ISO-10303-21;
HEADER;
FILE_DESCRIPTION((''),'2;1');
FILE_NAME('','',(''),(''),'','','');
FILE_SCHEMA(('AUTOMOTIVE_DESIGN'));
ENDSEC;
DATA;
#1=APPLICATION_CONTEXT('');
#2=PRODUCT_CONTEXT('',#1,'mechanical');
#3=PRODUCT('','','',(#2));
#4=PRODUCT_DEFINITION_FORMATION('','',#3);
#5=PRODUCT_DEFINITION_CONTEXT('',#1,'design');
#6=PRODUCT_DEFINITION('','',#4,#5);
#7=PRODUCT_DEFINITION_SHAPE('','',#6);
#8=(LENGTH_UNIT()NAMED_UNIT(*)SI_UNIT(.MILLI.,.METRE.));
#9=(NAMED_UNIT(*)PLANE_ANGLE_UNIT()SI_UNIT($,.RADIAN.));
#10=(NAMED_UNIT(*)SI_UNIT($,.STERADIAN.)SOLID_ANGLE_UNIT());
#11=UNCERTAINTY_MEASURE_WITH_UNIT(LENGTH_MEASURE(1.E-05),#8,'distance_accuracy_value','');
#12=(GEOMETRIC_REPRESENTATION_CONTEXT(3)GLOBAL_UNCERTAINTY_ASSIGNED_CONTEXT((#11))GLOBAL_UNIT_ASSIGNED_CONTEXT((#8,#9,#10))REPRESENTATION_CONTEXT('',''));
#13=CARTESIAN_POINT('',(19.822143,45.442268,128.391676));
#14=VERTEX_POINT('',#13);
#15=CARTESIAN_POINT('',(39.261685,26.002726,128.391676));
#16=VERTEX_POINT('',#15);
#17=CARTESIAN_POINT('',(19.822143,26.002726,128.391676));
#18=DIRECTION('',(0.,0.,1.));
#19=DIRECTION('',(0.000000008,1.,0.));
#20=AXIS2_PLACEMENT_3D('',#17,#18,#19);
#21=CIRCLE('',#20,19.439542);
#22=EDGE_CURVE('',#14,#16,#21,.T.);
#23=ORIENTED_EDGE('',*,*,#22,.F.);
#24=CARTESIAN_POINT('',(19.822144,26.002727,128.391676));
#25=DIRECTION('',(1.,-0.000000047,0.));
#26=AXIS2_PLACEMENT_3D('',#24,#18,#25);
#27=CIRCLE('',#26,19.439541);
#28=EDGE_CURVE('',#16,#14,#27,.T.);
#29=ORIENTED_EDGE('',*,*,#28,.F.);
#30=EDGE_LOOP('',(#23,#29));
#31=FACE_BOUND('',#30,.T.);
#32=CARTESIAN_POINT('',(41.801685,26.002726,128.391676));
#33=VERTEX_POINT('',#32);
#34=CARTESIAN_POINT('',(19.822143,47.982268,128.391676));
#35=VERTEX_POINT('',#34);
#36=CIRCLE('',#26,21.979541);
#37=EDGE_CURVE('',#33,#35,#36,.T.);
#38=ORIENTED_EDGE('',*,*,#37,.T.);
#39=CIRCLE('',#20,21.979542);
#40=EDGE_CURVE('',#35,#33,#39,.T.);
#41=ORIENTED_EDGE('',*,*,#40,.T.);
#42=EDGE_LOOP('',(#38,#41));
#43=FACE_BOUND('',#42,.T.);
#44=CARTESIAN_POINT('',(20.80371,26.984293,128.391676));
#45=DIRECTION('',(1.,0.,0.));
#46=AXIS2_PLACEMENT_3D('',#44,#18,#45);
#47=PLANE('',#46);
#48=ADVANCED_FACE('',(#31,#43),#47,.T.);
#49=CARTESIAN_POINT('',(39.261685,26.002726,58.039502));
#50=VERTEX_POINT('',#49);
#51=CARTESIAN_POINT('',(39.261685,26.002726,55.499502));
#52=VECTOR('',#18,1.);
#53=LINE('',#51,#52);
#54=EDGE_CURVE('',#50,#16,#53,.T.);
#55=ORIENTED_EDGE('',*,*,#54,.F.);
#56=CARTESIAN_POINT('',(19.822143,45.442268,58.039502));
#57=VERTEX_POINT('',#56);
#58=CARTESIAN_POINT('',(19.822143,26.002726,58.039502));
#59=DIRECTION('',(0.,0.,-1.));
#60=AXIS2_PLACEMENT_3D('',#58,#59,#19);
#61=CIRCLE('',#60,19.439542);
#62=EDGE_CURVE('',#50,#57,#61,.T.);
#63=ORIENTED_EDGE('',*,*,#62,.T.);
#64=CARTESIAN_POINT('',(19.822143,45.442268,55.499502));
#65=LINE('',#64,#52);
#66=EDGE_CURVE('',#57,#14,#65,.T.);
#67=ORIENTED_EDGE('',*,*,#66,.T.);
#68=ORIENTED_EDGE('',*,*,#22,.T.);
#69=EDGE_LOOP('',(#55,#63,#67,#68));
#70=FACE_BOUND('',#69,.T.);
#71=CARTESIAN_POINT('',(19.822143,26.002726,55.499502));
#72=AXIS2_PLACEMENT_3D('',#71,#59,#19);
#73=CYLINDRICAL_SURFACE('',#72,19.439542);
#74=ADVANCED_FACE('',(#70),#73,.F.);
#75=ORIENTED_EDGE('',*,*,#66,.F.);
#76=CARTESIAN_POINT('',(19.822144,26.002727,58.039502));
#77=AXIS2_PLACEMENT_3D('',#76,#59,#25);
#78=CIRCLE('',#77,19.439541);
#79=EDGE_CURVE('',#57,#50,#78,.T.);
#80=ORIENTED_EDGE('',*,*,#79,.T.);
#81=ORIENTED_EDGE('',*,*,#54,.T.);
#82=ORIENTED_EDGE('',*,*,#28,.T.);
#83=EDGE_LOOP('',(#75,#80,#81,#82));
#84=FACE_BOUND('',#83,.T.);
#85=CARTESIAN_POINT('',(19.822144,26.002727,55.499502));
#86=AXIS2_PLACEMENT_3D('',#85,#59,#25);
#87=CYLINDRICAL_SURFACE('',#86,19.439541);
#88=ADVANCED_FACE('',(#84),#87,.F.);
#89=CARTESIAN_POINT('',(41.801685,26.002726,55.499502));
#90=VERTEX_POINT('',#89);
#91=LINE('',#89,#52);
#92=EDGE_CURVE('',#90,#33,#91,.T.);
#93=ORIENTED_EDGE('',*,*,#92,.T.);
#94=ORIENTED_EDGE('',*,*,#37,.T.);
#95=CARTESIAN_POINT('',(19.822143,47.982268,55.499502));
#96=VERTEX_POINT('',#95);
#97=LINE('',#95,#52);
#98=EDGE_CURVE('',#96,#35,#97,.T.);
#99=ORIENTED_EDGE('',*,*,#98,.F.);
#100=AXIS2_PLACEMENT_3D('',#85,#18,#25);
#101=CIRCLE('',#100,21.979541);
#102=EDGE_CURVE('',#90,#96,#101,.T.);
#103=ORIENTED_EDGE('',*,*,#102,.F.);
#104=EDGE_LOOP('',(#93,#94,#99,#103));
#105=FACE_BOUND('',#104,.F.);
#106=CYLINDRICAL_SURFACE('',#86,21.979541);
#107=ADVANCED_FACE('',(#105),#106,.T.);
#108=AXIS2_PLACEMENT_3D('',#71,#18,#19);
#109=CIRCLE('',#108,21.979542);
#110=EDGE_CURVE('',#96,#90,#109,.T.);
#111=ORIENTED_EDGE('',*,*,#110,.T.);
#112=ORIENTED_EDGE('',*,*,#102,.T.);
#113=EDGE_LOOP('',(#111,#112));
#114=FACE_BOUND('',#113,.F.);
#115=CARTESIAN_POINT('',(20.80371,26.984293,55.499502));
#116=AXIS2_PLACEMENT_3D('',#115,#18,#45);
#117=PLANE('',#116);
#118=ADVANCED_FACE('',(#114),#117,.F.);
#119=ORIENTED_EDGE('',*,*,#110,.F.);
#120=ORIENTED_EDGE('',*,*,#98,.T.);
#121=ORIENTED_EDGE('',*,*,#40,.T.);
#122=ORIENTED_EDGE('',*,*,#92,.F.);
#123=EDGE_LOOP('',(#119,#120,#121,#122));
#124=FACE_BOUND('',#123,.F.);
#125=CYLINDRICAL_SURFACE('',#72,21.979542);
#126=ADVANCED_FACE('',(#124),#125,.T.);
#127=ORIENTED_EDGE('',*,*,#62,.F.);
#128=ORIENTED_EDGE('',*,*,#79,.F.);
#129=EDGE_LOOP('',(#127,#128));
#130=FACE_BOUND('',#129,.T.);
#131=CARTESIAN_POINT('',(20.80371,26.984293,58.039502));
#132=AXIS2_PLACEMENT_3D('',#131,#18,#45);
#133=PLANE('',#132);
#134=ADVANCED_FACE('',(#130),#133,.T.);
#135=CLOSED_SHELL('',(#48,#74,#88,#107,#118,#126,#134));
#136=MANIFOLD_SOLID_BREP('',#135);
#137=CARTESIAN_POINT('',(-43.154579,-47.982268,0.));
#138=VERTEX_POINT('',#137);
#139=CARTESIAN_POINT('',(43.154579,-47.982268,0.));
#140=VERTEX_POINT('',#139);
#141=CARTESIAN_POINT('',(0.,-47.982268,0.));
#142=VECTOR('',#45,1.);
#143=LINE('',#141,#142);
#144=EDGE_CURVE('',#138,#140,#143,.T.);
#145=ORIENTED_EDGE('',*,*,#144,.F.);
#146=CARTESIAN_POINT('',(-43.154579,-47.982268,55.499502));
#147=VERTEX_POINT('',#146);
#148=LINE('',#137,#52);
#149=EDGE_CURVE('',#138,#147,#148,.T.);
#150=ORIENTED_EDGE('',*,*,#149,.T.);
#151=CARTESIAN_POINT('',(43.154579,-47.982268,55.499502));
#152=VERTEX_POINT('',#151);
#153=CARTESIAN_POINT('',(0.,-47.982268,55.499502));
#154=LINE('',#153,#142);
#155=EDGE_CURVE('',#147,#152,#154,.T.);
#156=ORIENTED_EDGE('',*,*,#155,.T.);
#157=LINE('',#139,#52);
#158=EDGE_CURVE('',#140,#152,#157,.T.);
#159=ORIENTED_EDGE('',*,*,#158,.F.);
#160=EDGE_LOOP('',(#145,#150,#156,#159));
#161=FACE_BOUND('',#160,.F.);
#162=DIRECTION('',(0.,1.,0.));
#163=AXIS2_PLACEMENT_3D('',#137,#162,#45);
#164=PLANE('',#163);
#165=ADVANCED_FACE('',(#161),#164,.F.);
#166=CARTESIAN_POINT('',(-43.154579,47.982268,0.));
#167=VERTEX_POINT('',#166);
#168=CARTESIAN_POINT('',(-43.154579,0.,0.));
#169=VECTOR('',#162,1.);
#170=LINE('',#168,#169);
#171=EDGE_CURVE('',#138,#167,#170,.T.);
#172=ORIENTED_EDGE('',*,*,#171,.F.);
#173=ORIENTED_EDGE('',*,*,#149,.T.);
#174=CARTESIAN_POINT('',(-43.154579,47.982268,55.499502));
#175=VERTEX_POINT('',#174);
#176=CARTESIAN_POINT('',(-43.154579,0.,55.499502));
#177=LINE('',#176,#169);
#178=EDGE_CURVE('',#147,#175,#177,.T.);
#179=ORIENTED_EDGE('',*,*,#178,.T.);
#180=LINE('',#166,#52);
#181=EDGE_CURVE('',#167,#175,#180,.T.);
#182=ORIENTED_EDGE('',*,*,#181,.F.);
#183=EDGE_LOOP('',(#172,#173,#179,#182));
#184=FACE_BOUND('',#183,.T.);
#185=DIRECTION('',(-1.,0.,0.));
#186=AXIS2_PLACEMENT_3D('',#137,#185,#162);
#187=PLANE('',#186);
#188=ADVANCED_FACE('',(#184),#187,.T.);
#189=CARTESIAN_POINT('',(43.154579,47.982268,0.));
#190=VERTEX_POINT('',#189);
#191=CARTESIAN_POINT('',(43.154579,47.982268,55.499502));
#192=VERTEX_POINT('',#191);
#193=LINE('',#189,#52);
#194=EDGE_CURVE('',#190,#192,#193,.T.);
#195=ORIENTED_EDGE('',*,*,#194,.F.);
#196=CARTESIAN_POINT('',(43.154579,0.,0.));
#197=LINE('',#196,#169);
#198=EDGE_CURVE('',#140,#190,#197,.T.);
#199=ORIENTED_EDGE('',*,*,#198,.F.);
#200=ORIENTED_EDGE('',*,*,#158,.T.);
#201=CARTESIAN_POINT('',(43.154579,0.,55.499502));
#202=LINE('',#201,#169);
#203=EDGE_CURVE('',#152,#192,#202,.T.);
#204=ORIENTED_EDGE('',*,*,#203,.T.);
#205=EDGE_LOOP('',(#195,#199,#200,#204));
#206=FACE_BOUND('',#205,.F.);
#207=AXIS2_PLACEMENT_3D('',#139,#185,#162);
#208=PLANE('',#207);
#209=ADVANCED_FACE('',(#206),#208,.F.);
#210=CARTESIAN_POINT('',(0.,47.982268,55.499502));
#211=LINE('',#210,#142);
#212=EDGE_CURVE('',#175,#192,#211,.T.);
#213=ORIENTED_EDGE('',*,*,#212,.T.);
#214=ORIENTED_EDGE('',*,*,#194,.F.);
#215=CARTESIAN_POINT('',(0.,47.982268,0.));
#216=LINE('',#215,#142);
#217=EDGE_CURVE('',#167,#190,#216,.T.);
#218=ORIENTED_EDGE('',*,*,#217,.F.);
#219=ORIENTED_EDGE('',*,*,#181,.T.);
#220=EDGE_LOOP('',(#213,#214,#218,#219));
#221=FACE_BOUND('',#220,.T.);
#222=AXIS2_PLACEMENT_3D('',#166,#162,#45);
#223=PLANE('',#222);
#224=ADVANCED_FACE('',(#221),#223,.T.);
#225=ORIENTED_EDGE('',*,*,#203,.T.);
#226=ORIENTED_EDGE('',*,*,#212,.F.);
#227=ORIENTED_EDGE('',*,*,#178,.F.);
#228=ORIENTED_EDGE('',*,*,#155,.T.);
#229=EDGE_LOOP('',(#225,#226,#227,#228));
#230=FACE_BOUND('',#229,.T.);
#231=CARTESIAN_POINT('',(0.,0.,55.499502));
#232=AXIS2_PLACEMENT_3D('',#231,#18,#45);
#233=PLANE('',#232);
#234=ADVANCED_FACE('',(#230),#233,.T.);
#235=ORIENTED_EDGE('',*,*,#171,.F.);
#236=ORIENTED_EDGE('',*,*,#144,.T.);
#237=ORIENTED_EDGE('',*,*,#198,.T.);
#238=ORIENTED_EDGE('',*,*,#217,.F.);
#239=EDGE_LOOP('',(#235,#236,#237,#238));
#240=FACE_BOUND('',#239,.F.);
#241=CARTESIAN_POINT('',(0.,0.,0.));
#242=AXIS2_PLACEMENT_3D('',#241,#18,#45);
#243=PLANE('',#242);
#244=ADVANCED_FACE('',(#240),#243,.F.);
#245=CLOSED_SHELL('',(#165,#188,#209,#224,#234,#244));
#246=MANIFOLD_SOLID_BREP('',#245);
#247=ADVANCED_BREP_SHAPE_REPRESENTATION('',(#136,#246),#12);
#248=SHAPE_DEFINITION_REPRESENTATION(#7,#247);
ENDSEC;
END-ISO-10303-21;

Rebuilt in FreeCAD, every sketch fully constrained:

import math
import FreeCAD as App
import Part
import Sketcher
Q = App.Units.Quantity


def faces_at(feature, points):
    """Names of the faces that lie closest to the given points."""
    faces = feature.Shape.Faces
    near = lambda p: min(range(len(faces)), key=lambda i: faces[i].distToShape(Part.Vertex(*p))[0])
    return sorted({f"Face{near(p) + 1}" for p in points})


def add_polygon(sketch, points):
    """Adds a closed chain of lines whose ends are joined by coincident constraints."""
    first, n = sketch.GeometryCount, len(points)
    for a, b in zip(points, points[1:] + points[:1]):
        sketch.addGeometry(Part.LineSegment(App.Vector(*a, 0), App.Vector(*b, 0)), False)
    for i in range(n):
        sketch.addConstraint(Sketcher.Constraint("Coincident", first + i, 2, first + (i + 1) % n, 1))

doc = App.newDocument("Part")
body = doc.addObject("PartDesign::Body", "Body")

# Sketch on XY plane
sketch1 = doc.addObject("Sketcher::SketchObject", "Sketch")
body.addObject(sketch1)
sketch1.AttachmentSupport = (doc.XY_Plane, [""])
sketch1.MapMode = "FlatFace"
add_polygon(sketch1, [(-43.154579, 47.982268), (-43.154579, -47.982268), (43.154579, -47.982268), (43.154579, 47.982268)])  # lines 0-3
sketch1.addConstraint(Sketcher.Constraint("Vertical", 0))
sketch1.addConstraint(Sketcher.Constraint("Horizontal", 1))
sketch1.addConstraint(Sketcher.Constraint("Vertical", 2))
sketch1.addConstraint(Sketcher.Constraint("Horizontal", 3))
sketch1.addConstraint(Sketcher.Constraint("Symmetric", 0, 2, 2, 2, -1, 1))
sketch1.addConstraint(Sketcher.Constraint("DistanceX", 1, 1, 1, 2, 86.309158))
sketch1.addConstraint(Sketcher.Constraint("DistanceY", 0, 2, 0, 1, 95.964536))
pad1 = doc.addObject("PartDesign::Pad", "Pad")
body.addObject(pad1)
pad1.Profile = sketch1
pad1.Length = 55.499502
body2 = doc.addObject("PartDesign::Body", "Body001")

# Sketch on XY plane
sketch2 = doc.addObject("Sketcher::SketchObject", "Sketch001")
body2.addObject(sketch2)
sketch2.AttachmentSupport = (doc.getObject("XY_Plane001"), [""])
sketch2.MapMode = "FlatFace"
sketch2.AttachmentOffset = App.Placement(App.Vector(0, 0, 55.499502), App.Rotation())
sketch2.addGeometry(Part.ArcOfCircle(Part.Circle(App.Vector(19.822143, 26.002726, 0), App.Vector(0, 0, 1), 21.979542), math.radians(90), math.radians(360)), False)
sketch2.addGeometry(Part.ArcOfCircle(Part.Circle(App.Vector(19.822144, 26.002727, 0), App.Vector(0, 0, 1), 21.979541), math.radians(-0.000003), math.radians(90.000003)), False)
sketch2.addConstraint(Sketcher.Constraint("Tangent", 0, 1, 1, 2))
sketch2.addConstraint(Sketcher.Constraint("Coincident", 1, 1, 0, 2))
sketch2.addConstraint(Sketcher.Constraint("Horizontal", 0, 3, 1, 1))
sketch2.addConstraint(Sketcher.Constraint("Vertical", 1, 3, 0, 1))
sketch2.addConstraint(Sketcher.Constraint("Radius", 1, 21.979541))
sketch2.addConstraint(Sketcher.Constraint("DistanceX", -1, 1, 0, 3, 19.822143))
sketch2.addConstraint(Sketcher.Constraint("DistanceY", -1, 1, 0, 3, 26.002726))
pad2 = doc.addObject("PartDesign::Pad", "Pad001")
body2.addObject(pad2)
pad2.Profile = sketch2
pad2.Length = 72.892174
doc.recompute()

thickness = doc.addObject("PartDesign::Thickness", "Thickness")
body2.addObject(thickness)
thickness.Base = (pad2, faces_at(pad2, [(19.822, 26.003, 128.392)]))
thickness.Value = Q("0.1 in")
thickness.Reversed = True
thickness.Join = "Arc"

doc.recompute()
